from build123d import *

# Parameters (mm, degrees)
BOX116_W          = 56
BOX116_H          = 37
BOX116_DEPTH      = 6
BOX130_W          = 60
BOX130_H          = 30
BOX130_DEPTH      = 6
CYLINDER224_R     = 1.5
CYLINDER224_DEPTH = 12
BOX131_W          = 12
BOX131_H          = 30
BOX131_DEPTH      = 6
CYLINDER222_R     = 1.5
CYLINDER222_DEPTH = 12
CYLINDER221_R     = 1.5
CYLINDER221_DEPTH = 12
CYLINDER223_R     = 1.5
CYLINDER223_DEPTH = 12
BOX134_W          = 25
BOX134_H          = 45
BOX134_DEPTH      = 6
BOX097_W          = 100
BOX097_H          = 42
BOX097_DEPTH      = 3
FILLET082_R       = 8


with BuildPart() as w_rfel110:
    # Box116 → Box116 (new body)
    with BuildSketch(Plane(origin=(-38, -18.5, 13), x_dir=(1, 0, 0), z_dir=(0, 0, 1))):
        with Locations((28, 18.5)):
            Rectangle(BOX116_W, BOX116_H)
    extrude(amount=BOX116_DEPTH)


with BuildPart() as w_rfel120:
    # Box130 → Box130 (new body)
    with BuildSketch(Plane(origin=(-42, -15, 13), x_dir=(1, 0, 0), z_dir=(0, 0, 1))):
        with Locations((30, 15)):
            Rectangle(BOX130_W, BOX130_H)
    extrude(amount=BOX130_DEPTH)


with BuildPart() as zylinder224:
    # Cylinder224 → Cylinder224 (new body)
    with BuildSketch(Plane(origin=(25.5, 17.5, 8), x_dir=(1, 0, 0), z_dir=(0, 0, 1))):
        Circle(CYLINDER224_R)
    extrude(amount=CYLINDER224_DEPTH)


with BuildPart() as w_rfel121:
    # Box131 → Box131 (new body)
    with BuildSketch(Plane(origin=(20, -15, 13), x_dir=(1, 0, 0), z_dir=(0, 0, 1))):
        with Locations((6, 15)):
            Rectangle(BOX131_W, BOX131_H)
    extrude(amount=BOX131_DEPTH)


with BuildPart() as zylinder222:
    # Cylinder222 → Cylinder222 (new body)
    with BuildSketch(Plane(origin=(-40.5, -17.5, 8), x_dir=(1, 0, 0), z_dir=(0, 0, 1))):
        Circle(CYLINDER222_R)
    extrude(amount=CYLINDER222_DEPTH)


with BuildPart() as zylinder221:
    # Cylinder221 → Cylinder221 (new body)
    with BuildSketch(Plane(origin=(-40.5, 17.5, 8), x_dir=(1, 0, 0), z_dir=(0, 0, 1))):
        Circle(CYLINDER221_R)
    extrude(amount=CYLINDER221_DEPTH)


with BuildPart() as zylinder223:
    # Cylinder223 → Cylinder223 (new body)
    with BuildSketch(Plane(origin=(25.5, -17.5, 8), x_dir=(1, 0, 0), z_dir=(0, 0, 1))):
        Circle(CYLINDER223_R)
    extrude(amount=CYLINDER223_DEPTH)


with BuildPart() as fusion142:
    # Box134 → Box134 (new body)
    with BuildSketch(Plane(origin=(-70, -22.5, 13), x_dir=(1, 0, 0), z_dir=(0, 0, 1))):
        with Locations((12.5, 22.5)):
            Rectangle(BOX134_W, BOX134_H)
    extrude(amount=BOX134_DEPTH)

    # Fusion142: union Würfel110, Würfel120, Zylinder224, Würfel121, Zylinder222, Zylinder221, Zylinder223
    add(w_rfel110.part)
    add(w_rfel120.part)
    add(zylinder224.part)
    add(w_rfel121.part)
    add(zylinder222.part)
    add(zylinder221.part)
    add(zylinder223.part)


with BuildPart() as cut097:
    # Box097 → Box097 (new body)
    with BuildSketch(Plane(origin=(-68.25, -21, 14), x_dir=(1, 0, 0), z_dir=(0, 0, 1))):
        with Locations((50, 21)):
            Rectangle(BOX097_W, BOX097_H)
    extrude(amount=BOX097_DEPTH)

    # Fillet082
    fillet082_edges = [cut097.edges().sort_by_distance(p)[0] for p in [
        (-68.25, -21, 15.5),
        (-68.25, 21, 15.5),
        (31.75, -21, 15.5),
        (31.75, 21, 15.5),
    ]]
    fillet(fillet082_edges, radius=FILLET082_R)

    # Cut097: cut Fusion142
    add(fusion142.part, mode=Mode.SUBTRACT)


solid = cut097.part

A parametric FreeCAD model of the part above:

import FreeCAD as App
import Part
import Sketcher
Q = App.Units.Quantity


def edges_at(feature, points):
    """Names of the edges that pass closest to the given points."""
    edges = feature.Shape.Edges
    near = lambda p: min(range(len(edges)), key=lambda i: edges[i].distToShape(Part.Vertex(*p))[0])
    return sorted({f"Edge{near(p) + 1}" for p in points})


def add_polygon(sketch, points):
    """Adds a closed chain of lines whose ends are joined by coincident constraints."""
    first, n = sketch.GeometryCount, len(points)
    for a, b in zip(points, points[1:] + points[:1]):
        sketch.addGeometry(Part.LineSegment(App.Vector(*a, 0), App.Vector(*b, 0)), False)
    for i in range(n):
        sketch.addConstraint(Sketcher.Constraint("Coincident", first + i, 2, first + (i + 1) % n, 1))

doc = App.newDocument("Part")
body = doc.addObject("PartDesign::Body", "Body")

sketch1 = body.newObject("Sketcher::SketchObject", "Sketch")
sketch1.AttachmentSupport = (doc.getObject("XY_Plane"), [""])
sketch1.MapMode = "FlatFace"
sketch1.AttachmentOffset = App.Placement(App.Vector(0, 0, 13), App.Rotation())
add_polygon(sketch1, [(-38, 18.5), (-38, -18.5), (18, -18.5), (18, 18.5)])
sketch1.addConstraint([
    Sketcher.Constraint("Vertical", 0),
    Sketcher.Constraint("Horizontal", 1),
    Sketcher.Constraint("Vertical", 2),
    Sketcher.Constraint("Horizontal", 3),
    Sketcher.Constraint("DistanceX", 1, 1, 1, 2, Q("56 mm")),
    Sketcher.Constraint("DistanceY", 0, 2, 0, 1, Q("37 mm")),
    Sketcher.Constraint("DistanceX", 0, 2, -1, 1, Q("38 mm")),
    Sketcher.Constraint("DistanceY", 0, 2, -1, 1, Q("18.5 mm")),
])
pad1 = body.newObject("PartDesign::Pad", "Pad")
pad1.Profile = sketch1
pad1.Length = 6
body2 = doc.addObject("PartDesign::Body", "Body001")

sketch2 = body2.newObject("Sketcher::SketchObject", "Sketch001")
sketch2.AttachmentSupport = (doc.getObject("XY_Plane001"), [""])
sketch2.MapMode = "FlatFace"
sketch2.AttachmentOffset = App.Placement(App.Vector(0, 0, 13), App.Rotation())
add_polygon(sketch2, [(-42, 15), (-42, -15), (18, -15), (18, 15)])
sketch2.addConstraint([
    Sketcher.Constraint("Vertical", 0),
    Sketcher.Constraint("Horizontal", 1),
    Sketcher.Constraint("Vertical", 2),
    Sketcher.Constraint("Horizontal", 3),
    Sketcher.Constraint("DistanceX", 1, 1, 1, 2, Q("60 mm")),
    Sketcher.Constraint("DistanceY", 0, 2, 0, 1, Q("30 mm")),
    Sketcher.Constraint("DistanceX", 0, 2, -1, 1, Q("42 mm")),
    Sketcher.Constraint("DistanceY", 0, 2, -1, 1, Q("15 mm")),
])
pad2 = body2.newObject("PartDesign::Pad", "Pad001")
pad2.Profile = sketch2
pad2.Length = 6
body3 = doc.addObject("PartDesign::Body", "Body002")

sketch3 = body3.newObject("Sketcher::SketchObject", "Sketch002")
sketch3.AttachmentSupport = (doc.getObject("XY_Plane002"), [""])
sketch3.MapMode = "FlatFace"
sketch3.AttachmentOffset = App.Placement(App.Vector(0, 0, 8), App.Rotation())
sketch3.addGeometry(Part.Circle(App.Vector(25.5, 17.5, 0), App.Vector(0, 0, 1), 1.5), False)
sketch3.addConstraint([
    Sketcher.Constraint("Diameter", 0, Q("3 mm")),
    Sketcher.Constraint("DistanceX", -1, 1, 0, 3, Q("25.5 mm")),
    Sketcher.Constraint("DistanceY", -1, 1, 0, 3, Q("17.5 mm")),
])
pad3 = body3.newObject("PartDesign::Pad", "Pad002")
pad3.Profile = sketch3
pad3.Length = 12
body4 = doc.addObject("PartDesign::Body", "Body003")

sketch4 = body4.newObject("Sketcher::SketchObject", "Sketch003")
sketch4.AttachmentSupport = (doc.getObject("XY_Plane003"), [""])
sketch4.MapMode = "FlatFace"
sketch4.AttachmentOffset = App.Placement(App.Vector(0, 0, 13), App.Rotation())
add_polygon(sketch4, [(20, 15), (20, -15), (32, -15), (32, 15)])
sketch4.addConstraint([
    Sketcher.Constraint("Vertical", 0),
    Sketcher.Constraint("Horizontal", 1),
    Sketcher.Constraint("Vertical", 2),
    Sketcher.Constraint("Horizontal", 3),
    Sketcher.Constraint("DistanceX", 1, 1, 1, 2, Q("12 mm")),
    Sketcher.Constraint("DistanceY", 0, 2, 0, 1, Q("30 mm")),
    Sketcher.Constraint("DistanceX", -1, 1, 0, 2, Q("20 mm")),
    Sketcher.Constraint("DistanceY", 0, 2, -1, 1, Q("15 mm")),
])
pad4 = body4.newObject("PartDesign::Pad", "Pad003")
pad4.Profile = sketch4
pad4.Length = 6
body5 = doc.addObject("PartDesign::Body", "Body004")

sketch5 = body5.newObject("Sketcher::SketchObject", "Sketch004")
sketch5.AttachmentSupport = (doc.getObject("XY_Plane004"), [""])
sketch5.MapMode = "FlatFace"
sketch5.AttachmentOffset = App.Placement(App.Vector(0, 0, 8), App.Rotation())
sketch5.addGeometry(Part.Circle(App.Vector(-40.5, -17.5, 0), App.Vector(0, 0, 1), 1.5), False)
sketch5.addConstraint([
    Sketcher.Constraint("Diameter", 0, Q("3 mm")),
    Sketcher.Constraint("DistanceX", 0, 3, -1, 1, Q("40.5 mm")),
    Sketcher.Constraint("DistanceY", 0, 3, -1, 1, Q("17.5 mm")),
])
pad5 = body5.newObject("PartDesign::Pad", "Pad004")
pad5.Profile = sketch5
pad5.Length = 12
body6 = doc.addObject("PartDesign::Body", "Body005")

sketch6 = body6.newObject("Sketcher::SketchObject", "Sketch005")
sketch6.AttachmentSupport = (doc.getObject("XY_Plane005"), [""])
sketch6.MapMode = "FlatFace"
sketch6.AttachmentOffset = App.Placement(App.Vector(0, 0, 8), App.Rotation())
sketch6.addGeometry(Part.Circle(App.Vector(-40.5, 17.5, 0), App.Vector(0, 0, 1), 1.5), False)
sketch6.addConstraint([
    Sketcher.Constraint("Diameter", 0, Q("3 mm")),
    Sketcher.Constraint("DistanceX", 0, 3, -1, 1, Q("40.5 mm")),
    Sketcher.Constraint("DistanceY", -1, 1, 0, 3, Q("17.5 mm")),
])
pad6 = body6.newObject("PartDesign::Pad", "Pad005")
pad6.Profile = sketch6
pad6.Length = 12
body7 = doc.addObject("PartDesign::Body", "Body006")

sketch7 = body7.newObject("Sketcher::SketchObject", "Sketch006")
sketch7.AttachmentSupport = (doc.getObject("XY_Plane006"), [""])
sketch7.MapMode = "FlatFace"
sketch7.AttachmentOffset = App.Placement(App.Vector(0, 0, 8), App.Rotation())
sketch7.addGeometry(Part.Circle(App.Vector(25.5, -17.5, 0), App.Vector(0, 0, 1), 1.5), False)
sketch7.addConstraint([
    Sketcher.Constraint("Diameter", 0, Q("3 mm")),
    Sketcher.Constraint("DistanceX", -1, 1, 0, 3, Q("25.5 mm")),
    Sketcher.Constraint("DistanceY", 0, 3, -1, 1, Q("17.5 mm")),
])
pad7 = body7.newObject("PartDesign::Pad", "Pad006")
pad7.Profile = sketch7
pad7.Length = 12
body8 = doc.addObject("PartDesign::Body", "Body007")
body8.AllowCompound = True

sketch8 = body8.newObject("Sketcher::SketchObject", "Sketch007")
sketch8.AttachmentSupport = (doc.getObject("XY_Plane007"), [""])
sketch8.MapMode = "FlatFace"
sketch8.AttachmentOffset = App.Placement(App.Vector(0, 0, 13), App.Rotation())
add_polygon(sketch8, [(-70, 22.5), (-70, -22.5), (-45, -22.5), (-45, 22.5)])
sketch8.addConstraint([
    Sketcher.Constraint("Vertical", 0),
    Sketcher.Constraint("Horizontal", 1),
    Sketcher.Constraint("Vertical", 2),
    Sketcher.Constraint("Horizontal", 3),
    Sketcher.Constraint("DistanceX", 1, 1, 1, 2, Q("25 mm")),
    Sketcher.Constraint("DistanceY", 0, 2, 0, 1, Q("45 mm")),
    Sketcher.Constraint("DistanceX", 0, 2, -1, 1, Q("70 mm")),
    Sketcher.Constraint("DistanceY", 0, 2, -1, 1, Q("22.5 mm")),
])
pad8 = body8.newObject("PartDesign::Pad", "Pad007")
pad8.Profile = sketch8
pad8.Length = 6
doc.recompute()

boolean = body8.newObject("PartDesign::Boolean", "Boolean")
boolean.Type = "Fuse"
boolean.addObjects([body])
doc.recompute()

boolean2 = body8.newObject("PartDesign::Boolean", "Boolean001")
boolean2.Type = "Fuse"
boolean2.addObjects([body2])
doc.recompute()

boolean3 = body8.newObject("PartDesign::Boolean", "Boolean002")
boolean3.Type = "Fuse"
boolean3.addObjects([body3])
doc.recompute()

boolean4 = body8.newObject("PartDesign::Boolean", "Boolean003")
boolean4.Type = "Fuse"
boolean4.addObjects([body4])
doc.recompute()

boolean5 = body8.newObject("PartDesign::Boolean", "Boolean004")
boolean5.Type = "Fuse"
boolean5.addObjects([body5])
doc.recompute()

boolean6 = body8.newObject("PartDesign::Boolean", "Boolean005")
boolean6.Type = "Fuse"
boolean6.addObjects([body6])
doc.recompute()

boolean7 = body8.newObject("PartDesign::Boolean", "Boolean006")
boolean7.Type = "Fuse"
boolean7.addObjects([body7])
body9 = doc.addObject("PartDesign::Body", "Body008")

sketch9 = body9.newObject("Sketcher::SketchObject", "Sketch008")
sketch9.AttachmentSupport = (doc.getObject("XY_Plane008"), [""])
sketch9.MapMode = "FlatFace"
sketch9.AttachmentOffset = App.Placement(App.Vector(0, 0, 14), App.Rotation())
add_polygon(sketch9, [(-68.25, 21), (-68.25, -21), (31.75, -21), (31.75, 21)])
sketch9.addConstraint([
    Sketcher.Constraint("Vertical", 0),
    Sketcher.Constraint("Horizontal", 1),
    Sketcher.Constraint("Vertical", 2),
    Sketcher.Constraint("Horizontal", 3),
    Sketcher.Constraint("DistanceX", 1, 1, 1, 2, Q("100 mm")),
    Sketcher.Constraint("DistanceY", 0, 2, 0, 1, Q("42 mm")),
    Sketcher.Constraint("DistanceY", 0, 2, -1, 1, Q("21 mm")),
    Sketcher.Constraint("DistanceX", 0, 2, -1, 1, Q("68.25 mm")),
])
pad9 = body9.newObject("PartDesign::Pad", "Pad008")
pad9.Profile = sketch9
pad9.Length = 3
doc.recompute()

fillet = body9.newObject("PartDesign::Fillet", "Fillet")
fillet.Base = (pad9, edges_at(pad9, [
    (-68.25, -21, 15.5),
    (-68.25, 21, 15.5),
    (31.75, -21, 15.5),
    (31.75, 21, 15.5),
]))
fillet.Radius = 8
doc.recompute()

boolean8 = body9.newObject("PartDesign::Boolean", "Boolean007")
boolean8.Type = "Cut"
boolean8.addObjects([body8])

doc.recompute()
